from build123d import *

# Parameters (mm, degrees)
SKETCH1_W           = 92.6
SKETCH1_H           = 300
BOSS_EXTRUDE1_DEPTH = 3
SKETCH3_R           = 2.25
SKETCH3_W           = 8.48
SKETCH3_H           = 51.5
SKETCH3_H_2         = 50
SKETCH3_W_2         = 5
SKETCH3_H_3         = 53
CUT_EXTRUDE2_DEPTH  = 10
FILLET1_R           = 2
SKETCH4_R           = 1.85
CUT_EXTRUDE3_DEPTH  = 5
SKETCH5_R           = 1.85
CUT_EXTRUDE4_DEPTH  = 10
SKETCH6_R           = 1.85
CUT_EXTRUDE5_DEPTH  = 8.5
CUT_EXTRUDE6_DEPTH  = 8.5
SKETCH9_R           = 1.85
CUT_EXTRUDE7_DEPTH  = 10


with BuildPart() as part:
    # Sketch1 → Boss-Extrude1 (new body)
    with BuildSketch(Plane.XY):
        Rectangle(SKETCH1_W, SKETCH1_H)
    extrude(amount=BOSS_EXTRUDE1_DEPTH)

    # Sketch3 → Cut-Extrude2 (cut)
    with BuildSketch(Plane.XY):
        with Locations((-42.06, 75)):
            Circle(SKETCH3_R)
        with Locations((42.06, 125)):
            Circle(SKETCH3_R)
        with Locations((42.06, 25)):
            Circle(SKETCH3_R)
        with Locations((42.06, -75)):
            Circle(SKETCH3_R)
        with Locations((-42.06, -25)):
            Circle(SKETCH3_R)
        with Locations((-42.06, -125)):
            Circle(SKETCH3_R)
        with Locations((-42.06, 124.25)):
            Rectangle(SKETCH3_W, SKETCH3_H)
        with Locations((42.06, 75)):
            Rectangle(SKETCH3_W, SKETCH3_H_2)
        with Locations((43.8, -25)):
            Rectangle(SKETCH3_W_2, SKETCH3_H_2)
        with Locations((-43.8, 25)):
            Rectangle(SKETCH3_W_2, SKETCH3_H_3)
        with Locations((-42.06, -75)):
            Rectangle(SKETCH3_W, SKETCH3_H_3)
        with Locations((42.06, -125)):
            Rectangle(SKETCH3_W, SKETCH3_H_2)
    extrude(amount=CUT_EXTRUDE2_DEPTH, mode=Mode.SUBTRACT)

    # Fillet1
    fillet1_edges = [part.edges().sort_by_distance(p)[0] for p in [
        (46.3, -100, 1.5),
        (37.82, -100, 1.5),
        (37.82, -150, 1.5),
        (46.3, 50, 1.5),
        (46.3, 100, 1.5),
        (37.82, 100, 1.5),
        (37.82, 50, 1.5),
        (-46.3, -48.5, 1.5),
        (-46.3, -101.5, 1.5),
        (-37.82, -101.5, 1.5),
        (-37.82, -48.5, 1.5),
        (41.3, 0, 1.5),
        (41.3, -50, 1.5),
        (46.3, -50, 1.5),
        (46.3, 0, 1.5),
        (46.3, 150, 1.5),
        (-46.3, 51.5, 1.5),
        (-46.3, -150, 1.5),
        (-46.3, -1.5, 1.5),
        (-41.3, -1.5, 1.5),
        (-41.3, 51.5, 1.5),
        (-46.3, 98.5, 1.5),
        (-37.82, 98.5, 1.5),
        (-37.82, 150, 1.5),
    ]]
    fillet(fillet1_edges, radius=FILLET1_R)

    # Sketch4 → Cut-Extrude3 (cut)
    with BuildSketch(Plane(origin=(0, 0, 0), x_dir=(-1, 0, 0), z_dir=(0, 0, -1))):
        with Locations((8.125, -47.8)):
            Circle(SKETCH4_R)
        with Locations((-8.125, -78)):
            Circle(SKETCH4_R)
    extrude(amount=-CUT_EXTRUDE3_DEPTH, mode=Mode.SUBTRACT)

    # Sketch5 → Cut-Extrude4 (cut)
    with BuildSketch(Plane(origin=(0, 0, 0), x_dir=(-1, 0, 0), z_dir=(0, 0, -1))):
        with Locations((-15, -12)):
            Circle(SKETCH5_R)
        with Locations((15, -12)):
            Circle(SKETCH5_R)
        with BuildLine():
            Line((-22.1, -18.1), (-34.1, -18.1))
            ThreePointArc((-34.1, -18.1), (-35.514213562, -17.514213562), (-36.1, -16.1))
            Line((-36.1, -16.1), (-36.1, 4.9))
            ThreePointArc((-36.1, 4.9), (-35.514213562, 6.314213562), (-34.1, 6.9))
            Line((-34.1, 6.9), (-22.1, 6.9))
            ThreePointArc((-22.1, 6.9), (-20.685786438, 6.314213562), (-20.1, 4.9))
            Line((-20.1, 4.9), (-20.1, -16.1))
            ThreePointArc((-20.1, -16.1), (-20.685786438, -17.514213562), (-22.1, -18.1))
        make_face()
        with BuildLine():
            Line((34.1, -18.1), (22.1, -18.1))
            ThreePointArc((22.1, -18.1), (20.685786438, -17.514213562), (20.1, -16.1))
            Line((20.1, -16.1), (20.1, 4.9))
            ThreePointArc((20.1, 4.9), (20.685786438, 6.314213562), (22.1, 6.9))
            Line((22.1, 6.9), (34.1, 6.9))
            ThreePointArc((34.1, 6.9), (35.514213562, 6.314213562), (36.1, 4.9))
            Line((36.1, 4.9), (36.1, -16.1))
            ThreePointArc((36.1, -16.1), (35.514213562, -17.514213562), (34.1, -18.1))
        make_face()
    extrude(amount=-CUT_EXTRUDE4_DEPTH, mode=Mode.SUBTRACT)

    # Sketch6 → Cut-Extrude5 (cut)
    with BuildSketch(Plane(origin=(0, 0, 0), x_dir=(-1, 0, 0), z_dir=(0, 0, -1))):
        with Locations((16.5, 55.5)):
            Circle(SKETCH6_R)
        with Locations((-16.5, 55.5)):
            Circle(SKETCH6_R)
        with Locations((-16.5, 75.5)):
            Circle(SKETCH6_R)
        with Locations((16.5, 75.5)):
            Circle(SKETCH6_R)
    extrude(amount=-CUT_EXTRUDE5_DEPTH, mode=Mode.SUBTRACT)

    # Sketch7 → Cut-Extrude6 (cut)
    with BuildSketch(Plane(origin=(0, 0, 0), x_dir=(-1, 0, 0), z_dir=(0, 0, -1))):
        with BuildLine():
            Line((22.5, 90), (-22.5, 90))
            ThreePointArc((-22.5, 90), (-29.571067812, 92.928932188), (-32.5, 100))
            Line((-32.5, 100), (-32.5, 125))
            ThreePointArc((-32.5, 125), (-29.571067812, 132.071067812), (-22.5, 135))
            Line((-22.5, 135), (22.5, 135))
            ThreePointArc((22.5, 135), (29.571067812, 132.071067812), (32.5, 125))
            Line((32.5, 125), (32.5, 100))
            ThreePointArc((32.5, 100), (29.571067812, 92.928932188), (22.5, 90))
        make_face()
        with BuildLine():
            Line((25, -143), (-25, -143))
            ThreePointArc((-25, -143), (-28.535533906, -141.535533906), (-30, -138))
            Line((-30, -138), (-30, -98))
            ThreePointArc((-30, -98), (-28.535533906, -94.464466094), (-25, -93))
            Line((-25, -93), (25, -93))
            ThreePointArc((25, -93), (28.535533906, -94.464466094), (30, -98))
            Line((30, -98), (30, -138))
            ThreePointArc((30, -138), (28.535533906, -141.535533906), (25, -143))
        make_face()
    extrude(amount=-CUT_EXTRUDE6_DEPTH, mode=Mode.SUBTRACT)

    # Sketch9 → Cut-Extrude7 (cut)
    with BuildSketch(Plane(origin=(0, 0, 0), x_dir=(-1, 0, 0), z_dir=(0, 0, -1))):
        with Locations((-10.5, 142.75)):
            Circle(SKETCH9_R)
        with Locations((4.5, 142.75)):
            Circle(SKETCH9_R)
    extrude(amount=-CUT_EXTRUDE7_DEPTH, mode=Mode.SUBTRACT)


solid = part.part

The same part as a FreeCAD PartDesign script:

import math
import FreeCAD as App
import Part
import Sketcher
from FreeCAD import Vector


def edges_at(feature, points):
    """Names of the edges that pass closest to the given points."""
    edges = feature.Shape.Edges
    near = lambda p: min(range(len(edges)), key=lambda i: edges[i].distToShape(Part.Vertex(*p))[0])
    return sorted({f"Edge{near(p) + 1}" for p in points})


def add_polygon(sketch, points):
    """Adds a closed chain of lines whose ends are joined by coincident constraints."""
    first, n = sketch.GeometryCount, len(points)
    for a, b in zip(points, points[1:] + points[:1]):
        sketch.addGeometry(Part.LineSegment(App.Vector(*a, 0), App.Vector(*b, 0)), False)
    for i in range(n):
        sketch.addConstraint(Sketcher.Constraint("Coincident", first + i, 2, first + (i + 1) % n, 1))

doc = App.newDocument("Part")
body = doc.addObject("PartDesign::Body", "Body")

# Sketch on XY plane
sketch1 = doc.addObject("Sketcher::SketchObject", "Sketch")
body.addObject(sketch1)
sketch1.AttachmentSupport = (doc.XY_Plane, [""])
sketch1.MapMode = "FlatFace"
add_polygon(sketch1, [(-46, 150), (-46, -150), (46, -150), (46, 150)])  # lines 0-3
sketch1.addConstraint(Sketcher.Constraint("Vertical", 0))
sketch1.addConstraint(Sketcher.Constraint("Horizontal", 1))
sketch1.addConstraint(Sketcher.Constraint("Vertical", 2))
sketch1.addConstraint(Sketcher.Constraint("Horizontal", 3))
sketch1.addConstraint(Sketcher.Constraint("Symmetric", 0, 2, 2, 2, -1, 1))
sketch1.addConstraint(Sketcher.Constraint("DistanceY", 0, 2, 0, 1, 300.0))
sketch1.addConstraint(Sketcher.Constraint("DistanceX", 1, 1, 1, 2, 92.6))
pad1 = doc.addObject("PartDesign::Pad", "Pad")
body.addObject(pad1)
pad1.Profile = sketch1
pad1.Length = 3

# Sketch on XY plane
sketch2 = doc.addObject("Sketcher::SketchObject", "Sketch001")
body.addObject(sketch2)
sketch2.AttachmentSupport = (doc.XY_Plane, [""])
sketch2.MapMode = "FlatFace"
sketch2.addGeometry(Part.Circle(Vector(-42.1, 75, 0), Vector(0, 0, 1), 2.2), False)  # 0
sketch2.addGeometry(Part.Circle(Vector(42.1, 125, 0), Vector(0, 0, 1), 2.2), False)  # 1
sketch2.addGeometry(Part.Circle(Vector(42.1, 25, 0), Vector(0, 0, 1), 2.2), False)  # 2
sketch2.addGeometry(Part.Circle(Vector(42.1, -75, 0), Vector(0, 0, 1), 2.2), False)  # 3
sketch2.addGeometry(Part.Circle(Vector(-42.1, -25, 0), Vector(0, 0, 1), 2.2), False)  # 4
sketch2.addGeometry(Part.Circle(Vector(-42.1, -125, 0), Vector(0, 0, 1), 2.2), False)  # 5
add_polygon(sketch2, [(-46.3, 150), (-46.3, 98.5), (-37.8, 98.5), (-37.8, 150)])  # lines 6-9
add_polygon(sketch2, [(37.8, 100), (37.8, 50), (46.3, 50), (46.3, 100)])  # lines 10-13
add_polygon(sketch2, [(41.3, 0), (41.3, -50), (46.3, -50), (46.3, 0)])  # lines 14-17
add_polygon(sketch2, [(-46.3, 51.5), (-46.3, -1.5), (-41.3, -1.5), (-41.3, 51.5)])  # lines 18-21
add_polygon(sketch2, [(-46.3, -48.5), (-46.3, -101.5), (-37.8, -101.5), (-37.8, -48.5)])  # lines 22-25
add_polygon(sketch2, [(37.8, -100), (37.8, -150), (46.3, -150), (46.3, -100)])  # lines 26-29
sketch2.addConstraint(Sketcher.Constraint("Vertical", 6))
sketch2.addConstraint(Sketcher.Constraint("Horizontal", 7))
sketch2.addConstraint(Sketcher.Constraint("Vertical", 8))
sketch2.addConstraint(Sketcher.Constraint("Horizontal", 9))
sketch2.addConstraint(Sketcher.Constraint("Vertical", 10))
sketch2.addConstraint(Sketcher.Constraint("Horizontal", 11))
sketch2.addConstraint(Sketcher.Constraint("Vertical", 12))
sketch2.addConstraint(Sketcher.Constraint("Horizontal", 13))
sketch2.addConstraint(Sketcher.Constraint("Vertical", 14))
sketch2.addConstraint(Sketcher.Constraint("Horizontal", 15))
sketch2.addConstraint(Sketcher.Constraint("Vertical", 16))
sketch2.addConstraint(Sketcher.Constraint("Horizontal", 17))
sketch2.addConstraint(Sketcher.Constraint("Vertical", 18))
sketch2.addConstraint(Sketcher.Constraint("Horizontal", 19))
sketch2.addConstraint(Sketcher.Constraint("Vertical", 20))
sketch2.addConstraint(Sketcher.Constraint("Horizontal", 21))
sketch2.addConstraint(Sketcher.Constraint("Vertical", 22))
sketch2.addConstraint(Sketcher.Constraint("Horizontal", 23))
sketch2.addConstraint(Sketcher.Constraint("Vertical", 24))
sketch2.addConstraint(Sketcher.Constraint("Horizontal", 25))
sketch2.addConstraint(Sketcher.Constraint("Vertical", 26))
sketch2.addConstraint(Sketcher.Constraint("Horizontal", 27))
sketch2.addConstraint(Sketcher.Constraint("Vertical", 28))
sketch2.addConstraint(Sketcher.Constraint("Horizontal", 29))
sketch2.addConstraint(Sketcher.Constraint("Equal", 0, 1))
sketch2.addConstraint(Sketcher.Constraint("Equal", 1, 2))
sketch2.addConstraint(Sketcher.Constraint("Equal", 2, 3))
sketch2.addConstraint(Sketcher.Constraint("Equal", 3, 4))
sketch2.addConstraint(Sketcher.Constraint("Equal", 4, 5))
sketch2.addConstraint(Sketcher.Constraint("Symmetric", 0, 3, 3, 3, -1, 1))
sketch2.addConstraint(Sketcher.Constraint("Symmetric", 2, 3, 4, 3, -1, 1))
sketch2.addConstraint(Sketcher.Constraint("Symmetric", 1, 3, 5, 3, -1, 1))
sketch2.addConstraint(Sketcher.Constraint("Symmetric", 8, 2, 26, 2, -1, 1))
sketch2.addConstraint(Sketcher.Constraint("Symmetric", 11, 2, 15, 2, -1))
sketch2.addConstraint(Sketcher.Constraint("Symmetric", 12, 2, 28, 2, -1))
sketch2.addConstraint(Sketcher.Constraint("PointOnObject", 16, 2, -1))
sketch2.addConstraint(Sketcher.Constraint("Vertical", 1, 3, 2, 3))
sketch2.addConstraint(Sketcher.Constraint("Vertical", 2, 3, 3, 3))
sketch2.addConstraint(Sketcher.Constraint("Vertical", 9, 2, 18, 2))
sketch2.addConstraint(Sketcher.Constraint("Vertical", 21, 2, 22, 2))
sketch2.addConstraint(Sketcher.Constraint("Vertical", 8, 2, 23, 2))
sketch2.addConstraint(Sketcher.Constraint("Vertical", 13, 2, 26, 2))
sketch2.addConstraint(Sketcher.Constraint("Equal", 9, 11))
sketch2.addConstraint(Sketcher.Constraint("Equal", 17, 19))
sketch2.addConstraint(Sketcher.Constraint("Equal", 12, 14))
sketch2.addConstraint(Sketcher.Constraint("Equal", 20, 22))
sketch2.addConstraint(Sketcher.Constraint("Equal", 16, 26))
sketch2.addConstraint(Sketcher.Constraint("Diameter", 0, 4.5))
sketch2.addConstraint(Sketcher.Constraint("DistanceX", 15, 1, 15, 2, 5.0))
sketch2.addConstraint(Sketcher.Constraint("DistanceY", 10, 2, 10, 1, 50.0))
sketch2.addConstraint(Sketcher.Constraint("DistanceY", 18, 2, 18, 1, 53.0))
sketch2.addConstraint(Sketcher.Constraint("DistanceY", 6, 2, 6, 1, 51.5))
sketch2.addConstraint(Sketcher.Constraint("DistanceY", -1, 1, 0, 3, 75.0))
sketch2.addConstraint(Sketcher.Constraint("DistanceY", -1, 1, 1, 3, 125.0))
sketch2.addConstraint(Sketcher.Constraint("DistanceY", -1, 1, 2, 3, 25.0))
sketch2.addConstraint(Sketcher.Constraint("DistanceY", 20, 2, 7, 2, 47.0))
sketch2.addConstraint(Sketcher.Constraint("DistanceY", 22, 2, 18, 2, 100.0))
sketch2.addConstraint(Sketcher.Constraint("DistanceX", 7, 1, 7, 2, 8.48))
sketch2.addConstraint(Sketcher.Constraint("DistanceX", 6, 2, -1, 1, 46.3))
sketch2.addConstraint(Sketcher.Constraint("DistanceX", 0, 3, -1, 1, 42.06))
pocket1 = doc.addObject("PartDesign::Pocket", "Pocket")
body.addObject(pocket1)
pocket1.Profile = sketch2
pocket1.Length = 10
pocket1.Reversed = True
doc.recompute()

fillet = doc.addObject("PartDesign::Fillet", "Fillet")
body.addObject(fillet)
fillet.Base = (pocket1, edges_at(pocket1, [
    (46.3, -100, 1.5),
    (37.82, -100, 1.5),
    (37.82, -150, 1.5),
    (46.3, 50, 1.5),
    (46.3, 100, 1.5),
    (37.82, 100, 1.5),
    (37.82, 50, 1.5),
    (-46.3, -48.5, 1.5),
    (-46.3, -101.5, 1.5),
    (-37.82, -101.5, 1.5),
    (-37.82, -48.5, 1.5),
    (41.3, 0, 1.5),
    (41.3, -50, 1.5),
    (46.3, -50, 1.5),
    (46.3, 0, 1.5),
    (46.3, 150, 1.5),
    (-46.3, 51.5, 1.5),
    (-46.3, -150, 1.5),
    (-46.3, -1.5, 1.5),
    (-41.3, -1.5, 1.5),
    (-41.3, 51.5, 1.5),
    (-46.3, 98.5, 1.5),
    (-37.82, 98.5, 1.5),
    (-37.82, 150, 1.5),
]))
fillet.Radius = 2

# Sketch on XY plane
sketch3 = doc.addObject("Sketcher::SketchObject", "Sketch002")
body.addObject(sketch3)
sketch3.AttachmentSupport = (doc.XY_Plane, [""])
sketch3.MapMode = "FlatFace"
sketch3.addGeometry(Part.Circle(Vector(-8.1, -47.8, 0), Vector(0, 0, 1), 1.9), False)
sketch3.addGeometry(Part.Circle(Vector(8.1, -78, 0), Vector(0, 0, 1), 1.9), False)
sketch3.addConstraint(Sketcher.Constraint("Equal", 0, 1))
sketch3.addConstraint(Sketcher.Constraint("Diameter", 0, 3.7))
sketch3.addConstraint(Sketcher.Constraint("DistanceY", 1, 3, -1, 1, 78.0))
sketch3.addConstraint(Sketcher.Constraint("DistanceY", 0, 3, -1, 1, 47.8))
sketch3.addConstraint(Sketcher.Constraint("DistanceX", 0, 3, 1, 3, 16.25))
sketch3.addConstraint(Sketcher.Constraint("DistanceX", 0, 3, -1, 1, 8.125))
pocket2 = doc.addObject("PartDesign::Pocket", "Pocket001")
body.addObject(pocket2)
pocket2.Profile = sketch3
pocket2.Length = 5
pocket2.Reversed = True

# Sketch on XY plane
sketch4 = doc.addObject("Sketcher::SketchObject", "Sketch003")
body.addObject(sketch4)
sketch4.AttachmentSupport = (doc.XY_Plane, [""])
sketch4.MapMode = "FlatFace"
sketch4.addGeometry(Part.Circle(Vector(15, -12, 0), Vector(0, 0, 1), 1.9), False)
sketch4.addGeometry(Part.Circle(Vector(-15, -12, 0), Vector(0, 0, 1), 1.9), False)
sketch4.addGeometry(Part.LineSegment(Vector(34.1, -18.1, 0), Vector(22.1, -18.1, 0)), False)
sketch4.addGeometry(Part.ArcOfCircle(Part.Circle(Vector(22.1, -16.1, 0), Vector(0, 0, 1), 2), math.radians(-180), math.radians(-90)), False)
sketch4.addGeometry(Part.LineSegment(Vector(20.1, -16.1, 0), Vector(20.1, 4.9, 0)), False)
sketch4.addGeometry(Part.ArcOfCircle(Part.Circle(Vector(22.1, 4.9, 0), Vector(0, 0, 1), 2), math.radians(90), math.radians(180)), False)
sketch4.addGeometry(Part.LineSegment(Vector(22.1, 6.9, 0), Vector(34.1, 6.9, 0)), False)
sketch4.addGeometry(Part.ArcOfCircle(Part.Circle(Vector(34.1, 4.9, 0), Vector(0, 0, 1), 2), math.radians(0), math.radians(90)), False)
sketch4.addGeometry(Part.LineSegment(Vector(36.1, 4.9, 0), Vector(36.1, -16.1, 0)), False)
sketch4.addGeometry(Part.ArcOfCircle(Part.Circle(Vector(34.1, -16.1, 0), Vector(0, 0, 1), 2), math.radians(-90), math.radians(0)), False)
sketch4.addGeometry(Part.LineSegment(Vector(-22.1, -18.1, 0), Vector(-34.1, -18.1, 0)), False)
sketch4.addGeometry(Part.ArcOfCircle(Part.Circle(Vector(-34.1, -16.1, 0), Vector(0, 0, 1), 2), math.radians(-180), math.radians(-90)), False)
sketch4.addGeometry(Part.LineSegment(Vector(-36.1, -16.1, 0), Vector(-36.1, 4.9, 0)), False)
sketch4.addGeometry(Part.ArcOfCircle(Part.Circle(Vector(-34.1, 4.9, 0), Vector(0, 0, 1), 2), math.radians(90), math.radians(180)), False)
sketch4.addGeometry(Part.LineSegment(Vector(-34.1, 6.9, 0), Vector(-22.1, 6.9, 0)), False)
sketch4.addGeometry(Part.ArcOfCircle(Part.Circle(Vector(-22.1, 4.9, 0), Vector(0, 0, 1), 2), math.radians(0), math.radians(90)), False)
sketch4.addGeometry(Part.LineSegment(Vector(-20.1, 4.9, 0), Vector(-20.1, -16.1, 0)), False)
sketch4.addGeometry(Part.ArcOfCircle(Part.Circle(Vector(-22.1, -16.1, 0), Vector(0, 0, 1), 2), math.radians(-90), math.radians(0)), False)
sketch4.addConstraint(Sketcher.Constraint("Tangent", 2, 2, 3, 2))
sketch4.addConstraint(Sketcher.Constraint("Tangent", 3, 1, 4, 1))
sketch4.addConstraint(Sketcher.Constraint("Tangent", 4, 2, 5, 2))
sketch4.addConstraint(Sketcher.Constraint("Tangent", 5, 1, 6, 1))
sketch4.addConstraint(Sketcher.Constraint("Tangent", 6, 2, 7, 2))
sketch4.addConstraint(Sketcher.Constraint("Tangent", 7, 1, 8, 1))
sketch4.addConstraint(Sketcher.Constraint("Tangent", 8, 2, 9, 2))
sketch4.addConstraint(Sketcher.Constraint("Tangent", 9, 1, 2, 1))
sketch4.addConstraint(Sketcher.Constraint("Tangent", 10, 2, 11, 2))
sketch4.addConstraint(Sketcher.Constraint("Tangent", 11, 1, 12, 1))
sketch4.addConstraint(Sketcher.Constraint("Tangent", 12, 2, 13, 2))
sketch4.addConstraint(Sketcher.Constraint("Tangent", 13, 1, 14, 1))
sketch4.addConstraint(Sketcher.Constraint("Tangent", 14, 2, 15, 2))
sketch4.addConstraint(Sketcher.Constraint("Tangent", 15, 1, 16, 1))
sketch4.addConstraint(Sketcher.Constraint("Tangent", 16, 2, 17, 2))
sketch4.addConstraint(Sketcher.Constraint("Tangent", 17, 1, 10, 1))
sketch4.addConstraint(Sketcher.Constraint("Horizontal", 2))
sketch4.addConstraint(Sketcher.Constraint("Vertical", 4))
sketch4.addConstraint(Sketcher.Constraint("Horizontal", 6))
sketch4.addConstraint(Sketcher.Constraint("Vertical", 8))
sketch4.addConstraint(Sketcher.Constraint("Horizontal", 10))
sketch4.addConstraint(Sketcher.Constraint("Vertical", 12))
sketch4.addConstraint(Sketcher.Constraint("Horizontal", 14))
sketch4.addConstraint(Sketcher.Constraint("Vertical", 16))
sketch4.addConstraint(Sketcher.Constraint("Equal", 0, 1))
sketch4.addConstraint(Sketcher.Constraint("Equal", 3, 5))
sketch4.addConstraint(Sketcher.Constraint("Equal", 5, 7))
sketch4.addConstraint(Sketcher.Constraint("Equal", 7, 9))
sketch4.addConstraint(Sketcher.Constraint("Equal", 9, 11))
sketch4.addConstraint(Sketcher.Constraint("Equal", 11, 13))
sketch4.addConstraint(Sketcher.Constraint("Equal", 13, 15))
sketch4.addConstraint(Sketcher.Constraint("Equal", 15, 17))
sketch4.addConstraint(Sketcher.Constraint("Symmetric", 0, 3, 1, 3, -2))
sketch4.addConstraint(Sketcher.Constraint("Symmetric", 9, 3, 11, 3, -2))
sketch4.addConstraint(Sketcher.Constraint("Symmetric", 5, 3, 15, 3, -2))
sketch4.addConstraint(Sketcher.Constraint("Radius", 3, 2.0))
sketch4.addConstraint(Sketcher.Constraint("Diameter", 0, 3.7))
sketch4.addConstraint(Sketcher.Constraint("DistanceX", 2, 2, 2, 1, 12.0))
sketch4.addConstraint(Sketcher.Constraint("DistanceY", 4, 1, 4, 2, 21.0))
sketch4.addConstraint(Sketcher.Constraint("DistanceX", -1, 1, 0, 3, 15.0))
sketch4.addConstraint(Sketcher.Constraint("DistanceY", 0, 3, -1, 1, 12.0))
sketch4.addConstraint(Sketcher.Constraint("DistanceX", -1, 1, 3, 3, 22.1))
sketch4.addConstraint(Sketcher.Constraint("DistanceY", 3, 3, -1, 1, 16.1))
pocket3 = doc.addObject("PartDesign::Pocket", "Pocket002")
body.addObject(pocket3)
pocket3.Profile = sketch4
pocket3.Length = 10
pocket3.Reversed = True

# Sketch on XY plane
sketch5 = doc.addObject("Sketcher::SketchObject", "Sketch004")
body.addObject(sketch5)
sketch5.AttachmentSupport = (doc.XY_Plane, [""])
sketch5.MapMode = "FlatFace"
sketch5.addGeometry(Part.Circle(Vector(-16.5, 55.5, 0), Vector(0, 0, 1), 1.9), False)
sketch5.addGeometry(Part.Circle(Vector(16.5, 55.5, 0), Vector(0, 0, 1), 1.9), False)
sketch5.addGeometry(Part.Circle(Vector(16.5, 75.5, 0), Vector(0, 0, 1), 1.9), False)
sketch5.addGeometry(Part.Circle(Vector(-16.5, 75.5, 0), Vector(0, 0, 1), 1.9), False)
sketch5.addConstraint(Sketcher.Constraint("Equal", 0, 1))
sketch5.addConstraint(Sketcher.Constraint("Equal", 1, 2))
sketch5.addConstraint(Sketcher.Constraint("Equal", 2, 3))
sketch5.addConstraint(Sketcher.Constraint("Symmetric", 0, 3, 1, 3, -2))
sketch5.addConstraint(Sketcher.Constraint("Symmetric", 2, 3, 3, 3, -2))
sketch5.addConstraint(Sketcher.Constraint("Vertical", 1, 3, 2, 3))
sketch5.addConstraint(Sketcher.Constraint("Diameter", 0, 3.7))
sketch5.addConstraint(Sketcher.Constraint("DistanceX", 0, 3, 1, 3, 33.0))
sketch5.addConstraint(Sketcher.Constraint("DistanceY", 1, 3, 2, 3, 20.0))
sketch5.addConstraint(Sketcher.Constraint("DistanceY", -1, 1, 0, 3, 55.5))
pocket4 = doc.addObject("PartDesign::Pocket", "Pocket003")
body.addObject(pocket4)
pocket4.Profile = sketch5
pocket4.Length = 8.5
pocket4.Reversed = True

# Sketch on XY plane
sketch6 = doc.addObject("Sketcher::SketchObject", "Sketch005")
body.addObject(sketch6)
sketch6.AttachmentSupport = (doc.XY_Plane, [""])
sketch6.MapMode = "FlatFace"
sketch6.addGeometry(Part.LineSegment(Vector(22, 90, 0), Vector(-22, 90, 0)), False)
sketch6.addGeometry(Part.ArcOfCircle(Part.Circle(Vector(-22, 100, 0), Vector(0, 0, 1), 10), math.radians(180), math.radians(270)), False)
sketch6.addGeometry(Part.LineSegment(Vector(-32, 100, 0), Vector(-32, 125, 0)), False)
sketch6.addGeometry(Part.ArcOfCircle(Part.Circle(Vector(-22, 125, 0), Vector(0, 0, 1), 10), math.radians(90), math.radians(180)), False)
sketch6.addGeometry(Part.LineSegment(Vector(-22, 135, 0), Vector(22, 135, 0)), False)
sketch6.addGeometry(Part.ArcOfCircle(Part.Circle(Vector(22, 125, 0), Vector(0, 0, 1), 10), math.radians(0), math.radians(90)), False)
sketch6.addGeometry(Part.LineSegment(Vector(32, 125, 0), Vector(32, 100, 0)), False)
sketch6.addGeometry(Part.ArcOfCircle(Part.Circle(Vector(22, 100, 0), Vector(0, 0, 1), 10), math.radians(-90), math.radians(0)), False)
sketch6.addGeometry(Part.LineSegment(Vector(25, -143, 0), Vector(-25, -143, 0)), False)
sketch6.addGeometry(Part.ArcOfCircle(Part.Circle(Vector(-25, -138, 0), Vector(0, 0, 1), 5), math.radians(180), math.radians(270)), False)
sketch6.addGeometry(Part.LineSegment(Vector(-30, -138, 0), Vector(-30, -98, 0)), False)
sketch6.addGeometry(Part.ArcOfCircle(Part.Circle(Vector(-25, -98, 0), Vector(0, 0, 1), 5), math.radians(90), math.radians(180)), False)
sketch6.addGeometry(Part.LineSegment(Vector(-25, -93, 0), Vector(25, -93, 0)), False)
sketch6.addGeometry(Part.ArcOfCircle(Part.Circle(Vector(25, -98, 0), Vector(0, 0, 1), 5), math.radians(0), math.radians(90)), False)
sketch6.addGeometry(Part.LineSegment(Vector(30, -98, 0), Vector(30, -138, 0)), False)
sketch6.addGeometry(Part.ArcOfCircle(Part.Circle(Vector(25, -138, 0), Vector(0, 0, 1), 5), math.radians(-90), math.radians(0)), False)
sketch6.addConstraint(Sketcher.Constraint("Tangent", 0, 2, 1, 2))
sketch6.addConstraint(Sketcher.Constraint("Tangent", 1, 1, 2, 1))
sketch6.addConstraint(Sketcher.Constraint("Tangent", 2, 2, 3, 2))
sketch6.addConstraint(Sketcher.Constraint("Tangent", 3, 1, 4, 1))
sketch6.addConstraint(Sketcher.Constraint("Tangent", 4, 2, 5, 2))
sketch6.addConstraint(Sketcher.Constraint("Tangent", 5, 1, 6, 1))
sketch6.addConstraint(Sketcher.Constraint("Tangent", 6, 2, 7, 2))
sketch6.addConstraint(Sketcher.Constraint("Tangent", 7, 1, 0, 1))
sketch6.addConstraint(Sketcher.Constraint("Tangent", 8, 2, 9, 2))
sketch6.addConstraint(Sketcher.Constraint("Tangent", 9, 1, 10, 1))
sketch6.addConstraint(Sketcher.Constraint("Tangent", 10, 2, 11, 2))
sketch6.addConstraint(Sketcher.Constraint("Tangent", 11, 1, 12, 1))
sketch6.addConstraint(Sketcher.Constraint("Tangent", 12, 2, 13, 2))
sketch6.addConstraint(Sketcher.Constraint("Tangent", 13, 1, 14, 1))
sketch6.addConstraint(Sketcher.Constraint("Tangent", 14, 2, 15, 2))
sketch6.addConstraint(Sketcher.Constraint("Tangent", 15, 1, 8, 1))
sketch6.addConstraint(Sketcher.Constraint("Horizontal", 0))
sketch6.addConstraint(Sketcher.Constraint("Vertical", 2))
sketch6.addConstraint(Sketcher.Constraint("Horizontal", 4))
sketch6.addConstraint(Sketcher.Constraint("Vertical", 6))
sketch6.addConstraint(Sketcher.Constraint("Horizontal", 8))
sketch6.addConstraint(Sketcher.Constraint("Vertical", 10))
sketch6.addConstraint(Sketcher.Constraint("Horizontal", 12))
sketch6.addConstraint(Sketcher.Constraint("Vertical", 14))
sketch6.addConstraint(Sketcher.Constraint("Equal", 1, 3))
sketch6.addConstraint(Sketcher.Constraint("Equal", 3, 5))
sketch6.addConstraint(Sketcher.Constraint("Equal", 5, 7))
sketch6.addConstraint(Sketcher.Constraint("Equal", 9, 11))
sketch6.addConstraint(Sketcher.Constraint("Equal", 11, 13))
sketch6.addConstraint(Sketcher.Constraint("Equal", 13, 15))
sketch6.addConstraint(Sketcher.Constraint("Radius", 1, 10.0))
sketch6.addConstraint(Sketcher.Constraint("Radius", 9, 5.0))
sketch6.addConstraint(Sketcher.Constraint("DistanceX", 0, 2, 0, 1, 45.0))
sketch6.addConstraint(Sketcher.Constraint("DistanceX", 8, 2, 8, 1, 50.0))
sketch6.addConstraint(Sketcher.Constraint("DistanceY", 2, 1, 2, 2, 25.0))
sketch6.addConstraint(Sketcher.Constraint("DistanceY", 10, 1, 10, 2, 40.0))
sketch6.addConstraint(Sketcher.Constraint("DistanceY", -1, 1, 1, 3, 100.0))
sketch6.addConstraint(Sketcher.Constraint("DistanceX", 9, 3, -1, 1, 25.0))
sketch6.addConstraint(Sketcher.Constraint("DistanceY", 9, 3, -1, 1, 138.0))
sketch6.addConstraint(Sketcher.Constraint("DistanceX", 1, 3, -1, 1, 22.5))
pocket5 = doc.addObject("PartDesign::Pocket", "Pocket004")
body.addObject(pocket5)
pocket5.Profile = sketch6
pocket5.Length = 8.5
pocket5.Reversed = True

# Sketch on XY plane
sketch7 = doc.addObject("Sketcher::SketchObject", "Sketch006")
body.addObject(sketch7)
sketch7.AttachmentSupport = (doc.XY_Plane, [""])
sketch7.MapMode = "FlatFace"
sketch7.addGeometry(Part.Circle(Vector(10.5, 142.8, 0), Vector(0, 0, 1), 1.9), False)
sketch7.addGeometry(Part.Circle(Vector(-4.5, 142.8, 0), Vector(0, 0, 1), 1.9), False)
sketch7.addConstraint(Sketcher.Constraint("Equal", 0, 1))
sketch7.addConstraint(Sketcher.Constraint("Horizontal", 0, 3, 1, 3))
sketch7.addConstraint(Sketcher.Constraint("Diameter", 0, 3.7))
sketch7.addConstraint(Sketcher.Constraint("DistanceX", 1, 3, 0, 3, 15.0))
sketch7.addConstraint(Sketcher.Constraint("DistanceX", -1, 1, 0, 3, 10.5))
sketch7.addConstraint(Sketcher.Constraint("DistanceY", -1, 1, 0, 3, 142.75))
pocket6 = doc.addObject("PartDesign::Pocket", "Pocket005")
body.addObject(pocket6)
pocket6.Profile = sketch7
pocket6.Length = 10
pocket6.Reversed = True

doc.recompute()
